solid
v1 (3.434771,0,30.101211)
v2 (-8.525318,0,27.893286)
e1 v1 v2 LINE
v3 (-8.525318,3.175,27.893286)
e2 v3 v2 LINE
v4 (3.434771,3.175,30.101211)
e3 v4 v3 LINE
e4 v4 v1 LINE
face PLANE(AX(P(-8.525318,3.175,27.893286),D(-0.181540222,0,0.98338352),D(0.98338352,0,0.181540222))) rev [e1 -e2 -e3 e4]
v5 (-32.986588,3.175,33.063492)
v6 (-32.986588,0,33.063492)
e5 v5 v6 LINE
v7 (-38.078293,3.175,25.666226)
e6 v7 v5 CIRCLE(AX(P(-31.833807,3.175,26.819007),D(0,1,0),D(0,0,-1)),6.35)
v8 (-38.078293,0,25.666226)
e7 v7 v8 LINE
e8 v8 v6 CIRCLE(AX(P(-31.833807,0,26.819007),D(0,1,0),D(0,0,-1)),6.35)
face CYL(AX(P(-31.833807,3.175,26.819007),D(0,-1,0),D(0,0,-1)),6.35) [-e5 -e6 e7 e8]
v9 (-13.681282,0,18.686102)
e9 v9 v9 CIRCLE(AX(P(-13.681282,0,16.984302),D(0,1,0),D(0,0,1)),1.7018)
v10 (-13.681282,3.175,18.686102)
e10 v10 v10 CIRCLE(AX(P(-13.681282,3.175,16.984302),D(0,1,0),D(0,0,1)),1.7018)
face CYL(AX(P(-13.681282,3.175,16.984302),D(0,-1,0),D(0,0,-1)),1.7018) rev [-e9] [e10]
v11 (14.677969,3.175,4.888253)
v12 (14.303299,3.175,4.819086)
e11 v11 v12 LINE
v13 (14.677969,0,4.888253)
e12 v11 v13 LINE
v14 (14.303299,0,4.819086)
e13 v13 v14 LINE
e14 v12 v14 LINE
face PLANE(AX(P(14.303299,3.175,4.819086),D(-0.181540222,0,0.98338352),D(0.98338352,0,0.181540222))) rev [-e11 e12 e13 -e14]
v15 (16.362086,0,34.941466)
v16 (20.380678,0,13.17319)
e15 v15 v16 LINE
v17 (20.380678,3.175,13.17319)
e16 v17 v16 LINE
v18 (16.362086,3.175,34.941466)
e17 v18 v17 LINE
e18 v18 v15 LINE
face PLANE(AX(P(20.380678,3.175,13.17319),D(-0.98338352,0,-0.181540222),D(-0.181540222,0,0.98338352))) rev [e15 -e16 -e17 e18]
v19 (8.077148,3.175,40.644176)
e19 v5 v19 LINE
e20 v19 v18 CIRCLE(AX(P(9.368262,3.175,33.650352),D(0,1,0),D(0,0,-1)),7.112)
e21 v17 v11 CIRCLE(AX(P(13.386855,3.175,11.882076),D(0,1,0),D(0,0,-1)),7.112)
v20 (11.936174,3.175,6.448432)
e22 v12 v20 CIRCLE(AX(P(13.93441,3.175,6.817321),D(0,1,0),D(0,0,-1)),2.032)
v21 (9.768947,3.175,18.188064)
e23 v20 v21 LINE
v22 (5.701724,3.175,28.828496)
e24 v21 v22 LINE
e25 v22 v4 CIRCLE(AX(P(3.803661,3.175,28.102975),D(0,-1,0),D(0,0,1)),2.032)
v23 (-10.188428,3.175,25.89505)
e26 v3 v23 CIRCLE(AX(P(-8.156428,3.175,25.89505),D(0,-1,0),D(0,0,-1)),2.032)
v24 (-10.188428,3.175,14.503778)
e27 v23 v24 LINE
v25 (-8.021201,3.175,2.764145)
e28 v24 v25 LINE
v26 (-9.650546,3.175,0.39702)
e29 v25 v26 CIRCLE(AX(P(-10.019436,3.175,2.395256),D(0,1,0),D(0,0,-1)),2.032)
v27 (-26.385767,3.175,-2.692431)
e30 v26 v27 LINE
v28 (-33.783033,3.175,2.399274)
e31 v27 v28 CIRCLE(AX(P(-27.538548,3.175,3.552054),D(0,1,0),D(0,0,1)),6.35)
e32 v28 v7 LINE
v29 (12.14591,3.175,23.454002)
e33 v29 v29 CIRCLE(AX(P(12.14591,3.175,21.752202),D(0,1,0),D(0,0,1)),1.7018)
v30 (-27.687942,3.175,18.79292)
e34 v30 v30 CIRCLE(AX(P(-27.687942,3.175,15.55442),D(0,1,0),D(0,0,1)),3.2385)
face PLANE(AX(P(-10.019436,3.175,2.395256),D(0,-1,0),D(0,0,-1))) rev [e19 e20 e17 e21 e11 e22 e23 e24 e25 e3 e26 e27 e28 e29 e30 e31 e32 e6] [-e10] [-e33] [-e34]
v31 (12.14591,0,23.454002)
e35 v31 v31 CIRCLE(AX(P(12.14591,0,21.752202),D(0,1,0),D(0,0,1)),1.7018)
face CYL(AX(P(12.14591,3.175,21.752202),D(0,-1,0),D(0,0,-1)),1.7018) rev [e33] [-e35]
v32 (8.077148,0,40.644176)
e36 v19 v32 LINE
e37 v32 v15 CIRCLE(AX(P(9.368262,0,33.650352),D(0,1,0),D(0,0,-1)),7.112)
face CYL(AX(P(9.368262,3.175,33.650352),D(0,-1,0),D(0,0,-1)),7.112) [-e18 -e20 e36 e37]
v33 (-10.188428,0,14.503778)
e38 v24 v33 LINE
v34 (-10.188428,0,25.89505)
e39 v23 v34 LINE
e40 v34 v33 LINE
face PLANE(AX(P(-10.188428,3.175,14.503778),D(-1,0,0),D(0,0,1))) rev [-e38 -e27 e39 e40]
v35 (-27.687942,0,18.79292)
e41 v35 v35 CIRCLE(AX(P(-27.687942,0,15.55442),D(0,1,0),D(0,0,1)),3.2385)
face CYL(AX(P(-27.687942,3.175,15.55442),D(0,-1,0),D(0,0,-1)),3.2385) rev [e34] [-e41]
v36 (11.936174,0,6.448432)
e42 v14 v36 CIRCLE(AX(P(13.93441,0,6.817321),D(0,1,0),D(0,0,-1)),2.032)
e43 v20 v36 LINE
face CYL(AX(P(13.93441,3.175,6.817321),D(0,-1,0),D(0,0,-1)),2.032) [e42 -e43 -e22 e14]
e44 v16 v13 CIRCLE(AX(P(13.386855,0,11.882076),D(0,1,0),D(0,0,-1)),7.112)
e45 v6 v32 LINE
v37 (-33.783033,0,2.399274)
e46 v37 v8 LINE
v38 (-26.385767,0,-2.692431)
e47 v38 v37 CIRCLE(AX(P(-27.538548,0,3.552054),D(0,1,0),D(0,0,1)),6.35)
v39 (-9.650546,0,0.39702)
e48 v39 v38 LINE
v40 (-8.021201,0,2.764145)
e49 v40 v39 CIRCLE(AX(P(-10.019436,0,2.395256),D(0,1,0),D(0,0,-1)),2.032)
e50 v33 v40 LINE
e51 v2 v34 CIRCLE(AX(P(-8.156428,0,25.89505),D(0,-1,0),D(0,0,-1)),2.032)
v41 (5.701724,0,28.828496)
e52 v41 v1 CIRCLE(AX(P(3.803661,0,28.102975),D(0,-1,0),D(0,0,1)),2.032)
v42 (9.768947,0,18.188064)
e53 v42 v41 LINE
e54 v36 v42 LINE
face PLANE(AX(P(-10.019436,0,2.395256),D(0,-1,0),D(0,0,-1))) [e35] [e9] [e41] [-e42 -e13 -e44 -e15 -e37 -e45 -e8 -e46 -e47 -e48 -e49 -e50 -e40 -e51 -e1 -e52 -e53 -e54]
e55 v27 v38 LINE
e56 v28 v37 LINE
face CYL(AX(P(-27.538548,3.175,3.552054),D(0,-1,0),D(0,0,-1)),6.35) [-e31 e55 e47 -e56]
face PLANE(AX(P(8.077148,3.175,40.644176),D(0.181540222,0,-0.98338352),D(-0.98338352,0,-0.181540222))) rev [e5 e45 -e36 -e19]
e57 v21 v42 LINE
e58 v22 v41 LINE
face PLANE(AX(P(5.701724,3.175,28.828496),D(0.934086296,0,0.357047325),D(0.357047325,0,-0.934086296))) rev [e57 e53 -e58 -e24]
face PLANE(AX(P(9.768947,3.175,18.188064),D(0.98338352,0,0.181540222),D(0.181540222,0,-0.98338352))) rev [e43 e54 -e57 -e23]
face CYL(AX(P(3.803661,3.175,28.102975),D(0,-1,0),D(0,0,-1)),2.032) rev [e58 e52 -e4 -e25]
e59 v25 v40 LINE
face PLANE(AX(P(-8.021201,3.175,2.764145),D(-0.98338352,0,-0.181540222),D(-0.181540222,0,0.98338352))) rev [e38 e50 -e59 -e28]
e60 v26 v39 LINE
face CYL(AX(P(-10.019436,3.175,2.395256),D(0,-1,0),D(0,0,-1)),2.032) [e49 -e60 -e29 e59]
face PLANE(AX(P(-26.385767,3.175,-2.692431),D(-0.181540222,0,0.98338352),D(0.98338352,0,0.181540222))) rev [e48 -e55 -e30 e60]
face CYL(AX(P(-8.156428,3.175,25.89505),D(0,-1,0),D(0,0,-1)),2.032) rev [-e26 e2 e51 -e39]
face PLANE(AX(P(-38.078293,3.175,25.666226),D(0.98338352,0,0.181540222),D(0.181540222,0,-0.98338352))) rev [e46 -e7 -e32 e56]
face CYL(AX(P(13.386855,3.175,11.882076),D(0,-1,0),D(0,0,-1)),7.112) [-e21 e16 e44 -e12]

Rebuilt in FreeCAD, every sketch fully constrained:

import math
import FreeCAD as App
import Part
import Sketcher
Q = App.Units.Quantity

doc = App.newDocument("Part")
params = doc.addObject("Spreadsheet::Sheet", "Params")
for row, (alias, value) in enumerate([
    ("sketch1_radius", "0.25 in"),
    ("sketch1_radius2", "0.28 in"),
    ("sketch1_radius3", "0.08 in"),
    ("sketch1_diameter", "0.134 in"),
    ("sketch1_diameter2", "0.255 in"),
    ("pad1_length", "0.125 in"),
], start=1):
    params.set(f"A{row}", alias)
    params.set(f"B{row}", "=" + value)
    params.setAlias(f"B{row}", alias)

body = doc.addObject("PartDesign::Body", "Body")

sketch1 = body.newObject("Sketcher::SketchObject", "Sketch")
sketch1.AttachmentSupport = (doc.getObject("XZ_Plane"), [""])
sketch1.MapMode = "FlatFace"
sketch1.addGeometry(Part.LineSegment(App.Vector(-9.65, 0.4, 0), App.Vector(-26.39, -2.69, 0)), False)
sketch1.addGeometry(Part.ArcOfCircle(Part.Circle(App.Vector(-27.54, 3.55, 0), App.Vector(0, 0, 1), 6.35), math.radians(-170), math.radians(-80)), False)
sketch1.addGeometry(Part.LineSegment(App.Vector(-33.78, 2.4, 0), App.Vector(-38.08, 25.67, 0)), False)
sketch1.addGeometry(Part.ArcOfCircle(Part.Circle(App.Vector(-31.83, 26.82, 0), App.Vector(0, 0, 1), 6.35), math.radians(100), math.radians(190)), False)
sketch1.addGeometry(Part.LineSegment(App.Vector(-32.99, 33.06, 0), App.Vector(8.08, 40.64, 0)), False)
sketch1.addGeometry(Part.ArcOfCircle(Part.Circle(App.Vector(9.37, 33.65, 0), App.Vector(0, 0, 1), 7.11), math.radians(10), math.radians(100)), False)
sketch1.addGeometry(Part.LineSegment(App.Vector(16.36, 34.94, 0), App.Vector(20.38, 13.17, 0)), False)
sketch1.addGeometry(Part.ArcOfCircle(Part.Circle(App.Vector(13.39, 11.88, 0), App.Vector(0, 0, 1), 7.11), math.radians(-80), math.radians(10)), False)
sketch1.addGeometry(Part.LineSegment(App.Vector(14.68, 4.89, 0), App.Vector(14.3, 4.82, 0)), False)
sketch1.addGeometry(Part.ArcOfCircle(Part.Circle(App.Vector(13.93, 6.82, 0), App.Vector(0, 0, 1), 2.03), math.radians(-170), math.radians(-80)), False)
sketch1.addGeometry(Part.LineSegment(App.Vector(11.94, 6.45, 0), App.Vector(9.77, 18.19, 0)), False)
sketch1.addGeometry(Part.LineSegment(App.Vector(9.77, 18.19, 0), App.Vector(5.7, 28.83, 0)), False)
sketch1.addGeometry(Part.ArcOfCircle(Part.Circle(App.Vector(3.8, 28.1, 0), App.Vector(0, 0, 1), 2.03), math.radians(21), math.radians(100)), False)
sketch1.addGeometry(Part.LineSegment(App.Vector(3.43, 30.1, 0), App.Vector(-8.53, 27.89, 0)), False)
sketch1.addGeometry(Part.ArcOfCircle(Part.Circle(App.Vector(-8.16, 25.9, 0), App.Vector(0, 0, 1), 2.03), math.radians(100), math.radians(180)), False)
sketch1.addGeometry(Part.LineSegment(App.Vector(-10.19, 25.9, 0), App.Vector(-10.19, 14.5, 0)), False)
sketch1.addGeometry(Part.LineSegment(App.Vector(-10.19, 14.5, 0), App.Vector(-8.02, 2.76, 0)), False)
sketch1.addGeometry(Part.ArcOfCircle(Part.Circle(App.Vector(-10.02, 2.4, 0), App.Vector(0, 0, 1), 2.03), math.radians(-80), math.radians(10)), False)
sketch1.addGeometry(Part.Circle(App.Vector(12.15, 21.75, 0), App.Vector(0, 0, 1), 1.7), False)
sketch1.addGeometry(Part.Circle(App.Vector(-13.68, 16.98, 0), App.Vector(0, 0, 1), 1.7), False)
sketch1.addGeometry(Part.Circle(App.Vector(-27.69, 15.55, 0), App.Vector(0, 0, 1), 3.24), False)
sketch1.addConstraint(Sketcher.Constraint("Tangent", 0, 2, 1, 2))
sketch1.addConstraint(Sketcher.Constraint("Tangent", 1, 1, 2, 1))
sketch1.addConstraint(Sketcher.Constraint("Tangent", 2, 2, 3, 2))
sketch1.addConstraint(Sketcher.Constraint("Tangent", 3, 1, 4, 1))
sketch1.addConstraint(Sketcher.Constraint("Tangent", 4, 2, 5, 2))
sketch1.addConstraint(Sketcher.Constraint("Tangent", 5, 1, 6, 1))
sketch1.addConstraint(Sketcher.Constraint("Tangent", 6, 2, 7, 2))
sketch1.addConstraint(Sketcher.Constraint("Tangent", 7, 1, 8, 1))
sketch1.addConstraint(Sketcher.Constraint("Tangent", 8, 2, 9, 2))
sketch1.addConstraint(Sketcher.Constraint("Tangent", 9, 1, 10, 1))
sketch1.addConstraint(Sketcher.Constraint("Coincident", 10, 2, 11, 1))
sketch1.addConstraint(Sketcher.Constraint("Tangent", 11, 2, 12, 1))
sketch1.addConstraint(Sketcher.Constraint("Tangent", 12, 2, 13, 1))
sketch1.addConstraint(Sketcher.Constraint("Tangent", 13, 2, 14, 1))
sketch1.addConstraint(Sketcher.Constraint("Tangent", 14, 2, 15, 1))
sketch1.addConstraint(Sketcher.Constraint("Coincident", 15, 2, 16, 1))
sketch1.addConstraint(Sketcher.Constraint("Tangent", 16, 2, 17, 2))
sketch1.addConstraint(Sketcher.Constraint("Tangent", 17, 1, 0, 1))
sketch1.addConstraint(Sketcher.Constraint("Vertical", 15))
sketch1.addConstraint(Sketcher.Constraint("Equal", 1, 3))
sketch1.addConstraint(Sketcher.Constraint("Equal", 5, 7))
sketch1.addConstraint(Sketcher.Constraint("Equal", 9, 12))
sketch1.addConstraint(Sketcher.Constraint("Equal", 12, 14))
sketch1.addConstraint(Sketcher.Constraint("Equal", 14, 17))
sketch1.addConstraint(Sketcher.Constraint("Equal", 18, 19))
sketch1.addConstraint(Sketcher.Constraint("Perpendicular", 0, 2))
sketch1.addConstraint(Sketcher.Constraint("Perpendicular", 2, 4))
sketch1.addConstraint(Sketcher.Constraint("Perpendicular", 4, 6))
sketch1.addConstraint(Sketcher.Constraint("Perpendicular", 6, 8))
sketch1.addConstraint(Sketcher.Constraint("Perpendicular", 8, 10))
sketch1.addConstraint(Sketcher.Constraint("Perpendicular", 10, 13))
sketch1.addConstraint(Sketcher.Constraint("Perpendicular", 13, 16))
sketch1.addConstraint(Sketcher.Constraint("Equal", 10, 16))
sketch1.addConstraint(Sketcher.Constraint("Radius", 1, Q("0.25 in")))
sketch1.addConstraint(Sketcher.Constraint("Radius", 5, Q("0.28 in")))
sketch1.addConstraint(Sketcher.Constraint("Radius", 9, Q("0.08 in")))
sketch1.addConstraint(Sketcher.Constraint("Diameter", 18, Q("0.134 in")))
sketch1.addConstraint(Sketcher.Constraint("Diameter", 20, Q("0.255 in")))
sketch1.addConstraint(Sketcher.Constraint("Distance", 0, Q("0.67 in")))
sketch1.addConstraint(Sketcher.Constraint("Distance", 10, Q("0.47 in")))
sketch1.addConstraint(Sketcher.Constraint("Distance", 4, Q("1.644 in")))
sketch1.addConstraint(Sketcher.Constraint("Distance", 8, Q("0.015 in")))
sketch1.addConstraint(Sketcher.Constraint("Distance", 2, Q("0.9315 in")))
sketch1.addConstraint(Sketcher.Constraint("Distance", 6, Q("0.8715 in")))
sketch1.addConstraint(Sketcher.Constraint("DistanceY", 9, 3, 7, 3, Q("0.1993998 in")))
sketch1.addConstraint(Sketcher.Constraint("DistanceY", -1, 1, 18, 3, Q("21.752202 mm")))
sketch1.addConstraint(Sketcher.Constraint("DistanceY", -1, 1, 19, 3, Q("16.984302 mm")))
sketch1.addConstraint(Sketcher.Constraint("DistanceX", -1, 1, 8, 2, Q("14.303299 mm")))
sketch1.addConstraint(Sketcher.Constraint("DistanceX", 12, 3, 5, 3, Q("5.564602 mm")))
sketch1.addConstraint(Sketcher.Constraint("DistanceY", 7, 3, 12, 3, Q("16.220899 mm")))
sketch1.addConstraint(Sketcher.Constraint("DistanceX", 18, 3, 9, 3, Q("1.7885 mm")))
sketch1.addConstraint(Sketcher.Constraint("DistanceY", -1, 1, 9, 3, Q("6.817321 mm")))
sketch1.addConstraint(Sketcher.Constraint("DistanceX", 19, 3, -1, 1, Q("13.681282 mm")))
sketch1.addConstraint(Sketcher.Constraint("DistanceY", -1, 1, 20, 3, Q("15.55442 mm")))
sketch1.addConstraint(Sketcher.Constraint("DistanceX", 20, 3, 19, 3, Q("14.00666 mm")))
sketch1.setExpression("Constraints[33]", "Params.sketch1_radius")
sketch1.setExpression("Constraints[34]", "Params.sketch1_radius2")
sketch1.setExpression("Constraints[35]", "Params.sketch1_radius3")
sketch1.setExpression("Constraints[36]", "Params.sketch1_diameter")
sketch1.setExpression("Constraints[37]", "Params.sketch1_diameter2")
pad1 = body.newObject("PartDesign::Pad", "Pad")
pad1.Profile = sketch1
pad1.setExpression("Length", "Params.pad1_length")
pad1.Reversed = True

doc.recompute()
